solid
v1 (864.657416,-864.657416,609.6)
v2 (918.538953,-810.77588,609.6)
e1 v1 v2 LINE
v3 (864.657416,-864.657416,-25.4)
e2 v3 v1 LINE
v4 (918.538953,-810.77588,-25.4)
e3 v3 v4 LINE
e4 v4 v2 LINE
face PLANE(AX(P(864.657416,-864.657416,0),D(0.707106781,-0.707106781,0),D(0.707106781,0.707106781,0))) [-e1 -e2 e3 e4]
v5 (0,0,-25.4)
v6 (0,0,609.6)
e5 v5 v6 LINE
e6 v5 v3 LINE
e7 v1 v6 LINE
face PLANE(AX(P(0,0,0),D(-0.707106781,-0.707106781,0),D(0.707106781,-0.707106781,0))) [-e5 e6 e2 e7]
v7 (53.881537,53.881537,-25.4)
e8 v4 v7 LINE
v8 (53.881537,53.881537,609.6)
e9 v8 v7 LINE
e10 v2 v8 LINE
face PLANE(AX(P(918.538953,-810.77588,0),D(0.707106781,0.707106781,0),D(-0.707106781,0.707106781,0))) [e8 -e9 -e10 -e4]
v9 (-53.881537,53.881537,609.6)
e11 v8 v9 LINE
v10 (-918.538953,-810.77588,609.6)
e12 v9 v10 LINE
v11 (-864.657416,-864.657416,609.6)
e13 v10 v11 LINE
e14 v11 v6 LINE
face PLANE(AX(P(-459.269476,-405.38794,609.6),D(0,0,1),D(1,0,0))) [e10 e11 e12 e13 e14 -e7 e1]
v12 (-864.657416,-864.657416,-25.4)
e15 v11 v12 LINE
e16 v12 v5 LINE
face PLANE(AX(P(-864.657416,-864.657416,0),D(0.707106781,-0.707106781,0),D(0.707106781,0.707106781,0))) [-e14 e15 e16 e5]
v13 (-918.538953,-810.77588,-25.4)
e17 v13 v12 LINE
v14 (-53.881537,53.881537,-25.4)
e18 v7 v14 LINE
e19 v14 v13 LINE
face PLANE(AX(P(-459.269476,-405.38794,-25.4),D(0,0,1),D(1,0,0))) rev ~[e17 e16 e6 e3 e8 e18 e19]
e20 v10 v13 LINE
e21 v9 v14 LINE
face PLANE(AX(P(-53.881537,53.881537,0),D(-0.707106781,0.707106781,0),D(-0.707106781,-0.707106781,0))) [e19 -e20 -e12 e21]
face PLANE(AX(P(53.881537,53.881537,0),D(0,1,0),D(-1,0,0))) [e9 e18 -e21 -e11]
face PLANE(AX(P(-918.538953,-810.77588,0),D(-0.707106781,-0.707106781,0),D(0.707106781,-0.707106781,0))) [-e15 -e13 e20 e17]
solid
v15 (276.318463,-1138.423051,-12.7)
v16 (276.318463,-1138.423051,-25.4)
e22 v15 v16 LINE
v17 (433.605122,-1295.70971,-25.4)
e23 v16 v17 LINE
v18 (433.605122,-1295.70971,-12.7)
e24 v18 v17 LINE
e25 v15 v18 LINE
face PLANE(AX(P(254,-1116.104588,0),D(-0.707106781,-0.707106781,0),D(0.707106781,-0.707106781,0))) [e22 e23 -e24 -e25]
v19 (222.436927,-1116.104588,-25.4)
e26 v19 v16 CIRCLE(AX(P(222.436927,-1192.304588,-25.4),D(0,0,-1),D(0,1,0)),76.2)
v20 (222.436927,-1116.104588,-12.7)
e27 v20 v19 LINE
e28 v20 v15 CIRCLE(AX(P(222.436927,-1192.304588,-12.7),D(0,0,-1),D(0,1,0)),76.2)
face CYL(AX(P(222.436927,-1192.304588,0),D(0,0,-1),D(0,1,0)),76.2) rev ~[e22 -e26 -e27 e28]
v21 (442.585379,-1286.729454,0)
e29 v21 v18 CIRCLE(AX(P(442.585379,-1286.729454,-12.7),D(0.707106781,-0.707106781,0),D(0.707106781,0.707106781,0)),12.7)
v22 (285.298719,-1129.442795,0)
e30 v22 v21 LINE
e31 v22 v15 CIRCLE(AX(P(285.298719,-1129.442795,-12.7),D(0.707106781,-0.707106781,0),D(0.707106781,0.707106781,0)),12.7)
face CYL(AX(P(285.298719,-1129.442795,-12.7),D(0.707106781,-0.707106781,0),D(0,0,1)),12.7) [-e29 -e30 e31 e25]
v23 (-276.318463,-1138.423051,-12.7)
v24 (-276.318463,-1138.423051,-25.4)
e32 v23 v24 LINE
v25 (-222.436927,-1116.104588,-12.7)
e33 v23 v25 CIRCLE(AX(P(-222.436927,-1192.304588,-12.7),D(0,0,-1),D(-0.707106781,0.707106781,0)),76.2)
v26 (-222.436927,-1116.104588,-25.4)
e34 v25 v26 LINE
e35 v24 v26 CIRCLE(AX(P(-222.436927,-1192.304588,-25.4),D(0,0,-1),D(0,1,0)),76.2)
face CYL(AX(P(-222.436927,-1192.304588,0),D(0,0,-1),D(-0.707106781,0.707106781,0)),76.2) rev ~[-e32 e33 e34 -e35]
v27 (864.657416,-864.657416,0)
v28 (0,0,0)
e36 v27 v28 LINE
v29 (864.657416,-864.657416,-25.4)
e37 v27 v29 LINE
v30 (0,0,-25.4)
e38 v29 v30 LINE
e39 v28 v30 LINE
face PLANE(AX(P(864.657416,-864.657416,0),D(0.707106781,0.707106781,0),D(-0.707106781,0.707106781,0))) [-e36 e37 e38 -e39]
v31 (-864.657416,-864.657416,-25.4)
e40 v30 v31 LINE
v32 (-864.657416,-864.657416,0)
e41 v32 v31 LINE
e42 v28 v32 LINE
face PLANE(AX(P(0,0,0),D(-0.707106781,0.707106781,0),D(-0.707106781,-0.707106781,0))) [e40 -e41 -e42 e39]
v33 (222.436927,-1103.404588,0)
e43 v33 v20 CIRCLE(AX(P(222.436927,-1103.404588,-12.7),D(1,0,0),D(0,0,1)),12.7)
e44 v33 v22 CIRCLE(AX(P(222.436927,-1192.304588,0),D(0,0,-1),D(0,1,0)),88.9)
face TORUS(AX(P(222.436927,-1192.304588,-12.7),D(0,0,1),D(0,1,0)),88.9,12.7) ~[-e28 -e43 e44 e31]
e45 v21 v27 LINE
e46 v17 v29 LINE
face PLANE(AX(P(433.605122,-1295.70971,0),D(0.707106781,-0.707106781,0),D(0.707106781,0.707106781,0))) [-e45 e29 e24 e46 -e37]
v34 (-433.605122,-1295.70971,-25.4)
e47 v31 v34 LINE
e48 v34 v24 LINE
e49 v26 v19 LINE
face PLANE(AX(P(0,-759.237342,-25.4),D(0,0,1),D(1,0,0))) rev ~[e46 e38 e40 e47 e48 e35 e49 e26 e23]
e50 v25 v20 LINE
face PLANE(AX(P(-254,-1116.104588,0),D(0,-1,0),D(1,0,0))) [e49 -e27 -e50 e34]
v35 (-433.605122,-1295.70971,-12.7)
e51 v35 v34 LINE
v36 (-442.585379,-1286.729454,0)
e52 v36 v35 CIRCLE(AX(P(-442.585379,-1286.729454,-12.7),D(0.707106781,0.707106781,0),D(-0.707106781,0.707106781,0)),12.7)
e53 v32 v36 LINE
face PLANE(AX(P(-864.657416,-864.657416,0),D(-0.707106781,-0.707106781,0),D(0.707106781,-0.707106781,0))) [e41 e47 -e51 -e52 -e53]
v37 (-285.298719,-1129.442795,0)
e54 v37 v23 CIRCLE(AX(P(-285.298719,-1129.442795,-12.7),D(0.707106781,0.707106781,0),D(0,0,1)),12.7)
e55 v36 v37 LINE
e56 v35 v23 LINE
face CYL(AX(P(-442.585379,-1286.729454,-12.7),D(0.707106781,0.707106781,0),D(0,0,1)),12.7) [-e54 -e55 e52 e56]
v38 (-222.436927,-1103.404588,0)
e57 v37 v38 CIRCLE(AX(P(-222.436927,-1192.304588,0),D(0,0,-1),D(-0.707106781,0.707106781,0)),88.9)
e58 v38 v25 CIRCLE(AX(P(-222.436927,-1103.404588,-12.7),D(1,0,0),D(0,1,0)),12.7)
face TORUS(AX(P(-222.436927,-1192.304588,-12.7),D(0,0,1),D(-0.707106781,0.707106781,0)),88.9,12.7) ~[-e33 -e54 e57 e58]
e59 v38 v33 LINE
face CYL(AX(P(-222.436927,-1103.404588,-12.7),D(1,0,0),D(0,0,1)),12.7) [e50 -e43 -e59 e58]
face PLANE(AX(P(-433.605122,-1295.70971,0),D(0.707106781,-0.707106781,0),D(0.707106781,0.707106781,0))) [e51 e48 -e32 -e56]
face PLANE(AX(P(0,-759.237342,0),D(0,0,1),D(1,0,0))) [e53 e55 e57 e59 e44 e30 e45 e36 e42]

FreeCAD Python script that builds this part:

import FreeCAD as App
import Part
import Sketcher
Q = App.Units.Quantity


def edges_at(feature, points):
    """Names of the edges that pass closest to the given points."""
    edges = feature.Shape.Edges
    near = lambda p: min(range(len(edges)), key=lambda i: edges[i].distToShape(Part.Vertex(*p))[0])
    return sorted({f"Edge{near(p) + 1}" for p in points})


def add_polygon(sketch, points):
    """Adds a closed chain of lines whose ends are joined by coincident constraints."""
    first, n = sketch.GeometryCount, len(points)
    for a, b in zip(points, points[1:] + points[:1]):
        sketch.addGeometry(Part.LineSegment(App.Vector(*a, 0), App.Vector(*b, 0)), False)
    for i in range(n):
        sketch.addConstraint(Sketcher.Constraint("Coincident", first + i, 2, first + (i + 1) % n, 1))

doc = App.newDocument("Part")
body = doc.addObject("PartDesign::Body", "Body")

sketch1 = doc.addObject("Sketcher::SketchObject", "Sketch")
body.addObject(sketch1)
sketch1.AttachmentSupport = (doc.XY_Plane, [""])
sketch1.MapMode = "FlatFace"
add_polygon(sketch1, [(433.605122, -1295.70971), (864.657416, -864.657416), (0, 0), (-864.657416, -864.657416), (-433.605122, -1295.70971), (-254, -1116.104588), (254, -1116.104588)])
sketch1.addConstraint([
    Sketcher.Constraint("Horizontal", 5),
    Sketcher.Constraint("Coincident", 1, 2, -1, 1),
    Sketcher.Constraint("Symmetric", 0, 2, 2, 2, -2),
    Sketcher.Constraint("Symmetric", 3, 2, 6, 2, -2),
    Sketcher.Constraint("Perpendicular", 0, 1),
    Sketcher.Constraint("Perpendicular", 1, 2),
    Sketcher.Constraint("Perpendicular", 3, 4),
    Sketcher.Constraint("Perpendicular", 4, 6),
    Sketcher.Constraint("DistanceX", 5, 1, 5, 2, Q("20 in")),
    Sketcher.Constraint("Distance", 0, Q("24 in")),
    Sketcher.Constraint("Distance", 4, Q("10 in")),
])
pad1 = doc.addObject("PartDesign::Pad", "Pad")
body.addObject(pad1)
pad1.Profile = sketch1
pad1.Length = Q("1 in")
pad1.Reversed = True
doc.recompute()

fillet = doc.addObject("PartDesign::Fillet", "Fillet")
body.addObject(fillet)
fillet.Base = (pad1, edges_at(pad1, [(-254, -1116.105, -12.7), (254, -1116.105, -12.7)]))
fillet.Radius = Q("3 in")
doc.recompute()

fillet2 = doc.addObject("PartDesign::Fillet", "Fillet001")
body.addObject(fillet2)
fillet2.Base = (fillet, edges_at(fillet, [(354.962, -1217.066, 0)]))
fillet2.Radius = Q("0.5 in")
body2 = doc.addObject("PartDesign::Body", "Body001")

sketch2 = doc.addObject("Sketcher::SketchObject", "Sketch001")
body2.addObject(sketch2)
sketch2.AttachmentSupport = (doc.getObject("XY_Plane001"), [""])
sketch2.MapMode = "FlatFace"
add_polygon(sketch2, [(-53.881537, 53.881537), (0, 0), (53.881537, 53.881537)])
sketch2.addConstraint([
    Sketcher.Constraint("Horizontal", 2),
    Sketcher.Constraint("Coincident", 0, 2, -1, 1),
    Sketcher.Constraint("Perpendicular", 0, 1),
    Sketcher.Constraint("Equal", 0, 1),
    Sketcher.Constraint("Distance", 0, Q("3 in")),
])
pad2 = doc.addObject("PartDesign::Pad", "Pad001")
body2.addObject(pad2)
pad2.Profile = sketch2
pad2.Type = "TwoLengths"
pad2.Length = Q("24 in")
pad2.Length2 = Q("1 in")

sketch3 = doc.addObject("Sketcher::SketchObject", "Sketch002")
body2.addObject(sketch3)
sketch3.AttachmentSupport = (doc.getObject("XY_Plane001"), [""])
sketch3.MapMode = "FlatFace"
add_polygon(sketch3, [(0, 0), (864.657416, -864.657416), (918.538953, -810.77588), (53.881537, 53.881537)])
sketch3.addConstraint([
    Sketcher.Constraint("Coincident", 3, 2, -1, 1),
    Sketcher.Constraint("Perpendicular", 0, 1),
    Sketcher.Constraint("Perpendicular", 1, 2),
    Sketcher.Constraint("Perpendicular", 2, 3),
    Sketcher.Constraint("Distance", 1, Q("3 in")),
    Sketcher.Constraint("Angle", 0, Q("-45 deg")),
    Sketcher.Constraint("DistanceY", 1, 2, -1, 1, 810.77588),
])
pad3 = doc.addObject("PartDesign::Pad", "Pad002")
body2.addObject(pad3)
pad3.Profile = sketch3
pad3.Type = "TwoLengths"
pad3.Length = Q("24 in")
pad3.Length2 = Q("1 in")

sketch4 = doc.addObject("Sketcher::SketchObject", "Sketch003")
body2.addObject(sketch4)
sketch4.AttachmentSupport = (doc.getObject("XY_Plane001"), [""])
sketch4.MapMode = "FlatFace"
add_polygon(sketch4, [(-864.657416, -864.657416), (0, 0), (-53.881537, 53.881537), (-918.538953, -810.77588)])
sketch4.addConstraint([
    Sketcher.Constraint("Coincident", 0, 2, -1, 1),
    Sketcher.Constraint("Perpendicular", 0, 1),
    Sketcher.Constraint("Perpendicular", 1, 2),
    Sketcher.Constraint("Perpendicular", 2, 3),
    Sketcher.Constraint("Distance", 1, Q("3 in")),
    Sketcher.Constraint("Angle", 0, Q("45 deg")),
    Sketcher.Constraint("DistanceY", 2, 2, -1, 1, 810.77588),
])
pad4 = doc.addObject("PartDesign::Pad", "Pad003")
body2.addObject(pad4)
pad4.Profile = sketch4
pad4.Type = "TwoLengths"
pad4.Length = Q("24 in")
pad4.Length2 = Q("1 in")

doc.recompute()
